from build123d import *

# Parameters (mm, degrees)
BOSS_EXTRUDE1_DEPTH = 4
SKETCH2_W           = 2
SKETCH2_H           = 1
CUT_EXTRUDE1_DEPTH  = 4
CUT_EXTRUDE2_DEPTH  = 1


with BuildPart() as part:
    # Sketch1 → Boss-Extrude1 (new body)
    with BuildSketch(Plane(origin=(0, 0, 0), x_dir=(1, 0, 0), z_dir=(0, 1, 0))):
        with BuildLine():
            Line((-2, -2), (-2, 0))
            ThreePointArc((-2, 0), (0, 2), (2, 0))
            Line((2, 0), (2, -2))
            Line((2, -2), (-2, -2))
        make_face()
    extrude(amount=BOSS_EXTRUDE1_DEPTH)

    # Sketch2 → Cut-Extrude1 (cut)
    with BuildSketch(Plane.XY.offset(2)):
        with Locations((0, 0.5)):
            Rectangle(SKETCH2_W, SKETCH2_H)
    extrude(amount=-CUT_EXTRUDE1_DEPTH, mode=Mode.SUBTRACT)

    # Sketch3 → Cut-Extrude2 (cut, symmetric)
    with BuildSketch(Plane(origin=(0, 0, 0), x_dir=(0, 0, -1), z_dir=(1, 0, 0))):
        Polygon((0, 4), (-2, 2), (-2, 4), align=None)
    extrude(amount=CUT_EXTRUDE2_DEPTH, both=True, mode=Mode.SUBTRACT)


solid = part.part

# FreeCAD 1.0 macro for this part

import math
import FreeCAD as App
import Part
import Sketcher
Q = App.Units.Quantity


def add_polygon(sketch, points):
    """Adds a closed chain of lines whose ends are joined by coincident constraints."""
    first, n = sketch.GeometryCount, len(points)
    for a, b in zip(points, points[1:] + points[:1]):
        sketch.addGeometry(Part.LineSegment(App.Vector(*a, 0), App.Vector(*b, 0)), False)
    for i in range(n):
        sketch.addConstraint(Sketcher.Constraint("Coincident", first + i, 2, first + (i + 1) % n, 1))

doc = App.newDocument("Part")
params = doc.addObject("Spreadsheet::Sheet", "Params")
for row, (alias, value) in enumerate([
    ("sketch1_radius", "2 mm"),
    ("sketch1_height", "2 mm"),
    ("pad1_length", "4 mm"),
    ("sketch2_width", "2 mm"),
    ("sketch2_height", "1 mm"),
    ("pocket1_length", "4 mm"),
    ("sketch3_width", "2 mm"),
    ("pocket2_length", "2 mm"),
], start=1):
    params.set(f"A{row}", alias)
    params.set(f"B{row}", "=" + value)
    params.setAlias(f"B{row}", alias)

body = doc.addObject("PartDesign::Body", "Body")

# Sketch on XZ plane
sketch1 = doc.addObject("Sketcher::SketchObject", "Sketch")
body.addObject(sketch1)
sketch1.AttachmentSupport = (doc.XZ_Plane, [""])
sketch1.MapMode = "FlatFace"
sketch1.addGeometry(Part.LineSegment(App.Vector(-2, 0, 0), App.Vector(-2, 2, 0)), False)
sketch1.addGeometry(Part.LineSegment(App.Vector(-2, 2, 0), App.Vector(2, 2, 0)), False)
sketch1.addGeometry(Part.LineSegment(App.Vector(2, 2, 0), App.Vector(2, 0, 0)), False)
sketch1.addGeometry(Part.ArcOfCircle(Part.Circle(App.Vector(0, 0, 0), App.Vector(0, 0, 1), 2), math.radians(180), math.radians(360)), False)
sketch1.addConstraint(Sketcher.Constraint("Coincident", 0, 2, 1, 1))
sketch1.addConstraint(Sketcher.Constraint("Coincident", 1, 2, 2, 1))
sketch1.addConstraint(Sketcher.Constraint("Tangent", 2, 2, 3, 2))
sketch1.addConstraint(Sketcher.Constraint("Tangent", 3, 1, 0, 1))
sketch1.addConstraint(Sketcher.Constraint("Vertical", 0))
sketch1.addConstraint(Sketcher.Constraint("Horizontal", 1))
sketch1.addConstraint(Sketcher.Constraint("Vertical", 2))
sketch1.addConstraint(Sketcher.Constraint("Coincident", 3, 3, -1, 1))
sketch1.addConstraint(Sketcher.Constraint("Radius", 3, Q("2 mm")))
sketch1.addConstraint(Sketcher.Constraint("DistanceY", 0, 1, 0, 2, Q("2 mm")))
sketch1.setExpression("Constraints[8]", "Params.sketch1_radius")
sketch1.setExpression("Constraints[9]", "Params.sketch1_height")
pad1 = doc.addObject("PartDesign::Pad", "Pad")
body.addObject(pad1)
pad1.Profile = sketch1
pad1.setExpression("Length", "Params.pad1_length")
pad1.Reversed = True

# Sketch on XY plane
sketch2 = doc.addObject("Sketcher::SketchObject", "Sketch001")
body.addObject(sketch2)
sketch2.AttachmentSupport = (doc.XY_Plane, [""])
sketch2.MapMode = "FlatFace"
sketch2.AttachmentOffset = App.Placement(App.Vector(0, 0, 2), App.Rotation())
add_polygon(sketch2, [(-1, 1), (-1, 0), (1, 0), (1, 1)])  # lines 0-3
sketch2.addConstraint(Sketcher.Constraint("Vertical", 0))
sketch2.addConstraint(Sketcher.Constraint("Horizontal", 1))
sketch2.addConstraint(Sketcher.Constraint("Vertical", 2))
sketch2.addConstraint(Sketcher.Constraint("Horizontal", 3))
sketch2.addConstraint(Sketcher.Constraint("Symmetric", 0, 2, 1, 2, -1, 1))
sketch2.addConstraint(Sketcher.Constraint("DistanceX", 1, 1, 1, 2, Q("2 mm")))
sketch2.addConstraint(Sketcher.Constraint("DistanceY", 0, 2, 0, 1, Q("1 mm")))
sketch2.setExpression("Constraints[9]", "Params.sketch2_width")
sketch2.setExpression("Constraints[10]", "Params.sketch2_height")
pocket1 = doc.addObject("PartDesign::Pocket", "Pocket")
body.addObject(pocket1)
pocket1.Profile = sketch2
pocket1.setExpression("Length", "Params.pocket1_length")

# Sketch on YZ plane
sketch3 = doc.addObject("Sketcher::SketchObject", "Sketch002")
body.addObject(sketch3)
sketch3.AttachmentSupport = (doc.YZ_Plane, [""])
sketch3.MapMode = "FlatFace"
add_polygon(sketch3, [(2, 2), (4, 0), (4, 2)])  # lines 0-2
sketch3.addConstraint(Sketcher.Constraint("Vertical", 1))
sketch3.addConstraint(Sketcher.Constraint("Horizontal", 2))
sketch3.addConstraint(Sketcher.Constraint("PointOnObject", 0, 2, -1))
sketch3.addConstraint(Sketcher.Constraint("Equal", 2, 1))
sketch3.addConstraint(Sketcher.Constraint("DistanceX", 2, 2, 2, 1, Q("2 mm")))
sketch3.addConstraint(Sketcher.Constraint("DistanceX", -1, 1, 0, 2, Q("4 mm")))
sketch3.setExpression("Constraints[7]", "Params.sketch3_width")
pocket2 = doc.addObject("PartDesign::Pocket", "Pocket001")
body.addObject(pocket2)
pocket2.Profile = sketch3
pocket2.setExpression("Length", "Params.pocket2_length")
pocket2.Midplane = True

doc.recompute()
